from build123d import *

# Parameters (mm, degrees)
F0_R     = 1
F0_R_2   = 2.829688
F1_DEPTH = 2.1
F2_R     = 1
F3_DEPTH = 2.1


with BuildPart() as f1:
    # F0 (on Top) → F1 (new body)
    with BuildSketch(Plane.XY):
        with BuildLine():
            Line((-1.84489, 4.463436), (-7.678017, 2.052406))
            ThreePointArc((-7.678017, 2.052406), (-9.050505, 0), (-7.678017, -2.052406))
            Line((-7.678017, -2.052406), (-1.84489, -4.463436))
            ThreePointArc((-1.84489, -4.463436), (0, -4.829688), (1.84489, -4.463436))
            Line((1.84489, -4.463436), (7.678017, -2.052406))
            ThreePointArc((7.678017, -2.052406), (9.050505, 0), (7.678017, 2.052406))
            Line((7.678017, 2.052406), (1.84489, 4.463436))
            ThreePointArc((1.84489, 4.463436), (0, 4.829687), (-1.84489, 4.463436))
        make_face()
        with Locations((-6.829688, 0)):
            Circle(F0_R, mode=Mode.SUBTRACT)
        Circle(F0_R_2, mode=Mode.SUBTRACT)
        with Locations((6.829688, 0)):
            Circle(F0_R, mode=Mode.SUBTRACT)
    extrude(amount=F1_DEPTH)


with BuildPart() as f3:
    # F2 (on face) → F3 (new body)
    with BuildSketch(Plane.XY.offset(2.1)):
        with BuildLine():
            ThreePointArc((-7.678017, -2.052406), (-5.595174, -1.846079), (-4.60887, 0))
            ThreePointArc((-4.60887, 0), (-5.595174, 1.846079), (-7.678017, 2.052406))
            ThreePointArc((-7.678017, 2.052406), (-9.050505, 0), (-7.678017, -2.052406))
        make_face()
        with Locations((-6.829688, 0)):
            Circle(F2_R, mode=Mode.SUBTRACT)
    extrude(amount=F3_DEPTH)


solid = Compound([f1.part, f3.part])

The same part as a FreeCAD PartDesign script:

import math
import FreeCAD as App
import Part
import Sketcher
from FreeCAD import Vector

doc = App.newDocument("Part")
body = doc.addObject("PartDesign::Body", "Body")

sketch1 = body.newObject("Sketcher::SketchObject", "Sketch")
sketch1.AttachmentSupport = (doc.getObject("XY_Plane"), [""])
sketch1.MapMode = "FlatFace"
sketch1.addGeometry([
    Part.LineSegment(Vector(-1.84489, 4.463436, 0), Vector(-7.678017, 2.052406, 0)),
    Part.ArcOfCircle(Part.Circle(Vector(-6.829686, 0, 0), Vector(0, 0, 1), 2.220819), math.radians(112.457005), math.radians(247.542995)),
    Part.LineSegment(Vector(-7.678017, -2.052406, 0), Vector(-1.84489, -4.463436, 0)),
    Part.ArcOfCircle(Part.Circle(Vector(0, -0.000008, 0), Vector(0, 0, 1), 4.82968), math.radians(-112.457011), math.radians(-67.542989)),
    Part.LineSegment(Vector(1.84489, -4.463436, 0), Vector(7.678017, -2.052406, 0)),
    Part.ArcOfCircle(Part.Circle(Vector(6.829686, 0, 0), Vector(0, 0, 1), 2.220819), math.radians(-67.542995), math.radians(67.542995)),
    Part.LineSegment(Vector(7.678017, 2.052406, 0), Vector(1.84489, 4.463436, 0)),
    Part.ArcOfCircle(Part.Circle(Vector(0, -0.000005, 0), Vector(0, 0, 1), 4.829692), math.radians(67.543049), math.radians(112.456951)),
    Part.Circle(Vector(-6.829688, 0, 0), Vector(0, 0, 1), 1),
    Part.Circle(Vector(0, 0, 0), Vector(0, 0, 1), 2.829688),
    Part.Circle(Vector(6.829688, 0, 0), Vector(0, 0, 1), 1),
], False)
sketch1.addConstraint([
    Sketcher.Constraint("Coincident", 0, 2, 1, 1),
    Sketcher.Constraint("Coincident", 1, 2, 2, 1),
    Sketcher.Constraint("Coincident", 2, 2, 3, 1),
    Sketcher.Constraint("Coincident", 3, 2, 4, 1),
    Sketcher.Constraint("Coincident", 4, 2, 5, 1),
    Sketcher.Constraint("Coincident", 5, 2, 6, 1),
    Sketcher.Constraint("Coincident", 6, 2, 7, 1),
    Sketcher.Constraint("Coincident", 7, 2, 0, 1),
    Sketcher.Constraint("Coincident", 3, 3, -1, 1),
    Sketcher.Constraint("Coincident", 7, 3, -1, 1),
    Sketcher.Constraint("Coincident", 9, 3, -1, 1),
    Sketcher.Constraint("Coincident", 8, 3, 1, 3),
    Sketcher.Constraint("Coincident", 10, 3, 5, 3),
    Sketcher.Constraint("PointOnObject", 1, 3, -1),
    Sketcher.Constraint("PointOnObject", 5, 3, -1),
    Sketcher.Constraint("Diameter", 8, 2.0),
    Sketcher.Constraint("Diameter", 10, 2.0),
    Sketcher.Constraint("Radius", 1, 2.220819),
    Sketcher.Constraint("Radius", 3, 4.82968),
    Sketcher.Constraint("Radius", 5, 2.220819),
    Sketcher.Constraint("Radius", 7, 4.829692),
    Sketcher.Constraint("Diameter", 9, 5.659376),
    Sketcher.Constraint("DistanceY", 1, 2, 7, 3, 2.052401),
    Sketcher.Constraint("DistanceY", 4, 2, 7, 3, 2.052401),
    Sketcher.Constraint("Distance", 0, 6.31177),
    Sketcher.Constraint("Distance", 2, 6.31177),
    Sketcher.Constraint("Distance", 4, 6.31177),
    Sketcher.Constraint("Distance", 6, 6.31177),
    Sketcher.Constraint("DistanceX", 2, 2, -1, 1, 1.84489),
    Sketcher.Constraint("DistanceX", -1, 1, 3, 2, 1.84489),
    Sketcher.Constraint("DistanceX", -1, 1, 6, 2, 1.84489),
    Sketcher.Constraint("DistanceX", 7, 2, -1, 1, 1.84489),
])
pad1 = body.newObject("PartDesign::Pad", "Pad")
pad1.Profile = sketch1
pad1.Length = 2.1
body2 = doc.addObject("PartDesign::Body", "Body001")

sketch2 = body2.newObject("Sketcher::SketchObject", "Sketch001")
sketch2.AttachmentSupport = (doc.getObject("XY_Plane001"), [""])
sketch2.MapMode = "FlatFace"
sketch2.AttachmentOffset = App.Placement(Vector(0, 0, 2.1), App.Rotation())
sketch2.addGeometry([
    Part.ArcOfCircle(Part.Circle(Vector(-6.829688, 0, 0), Vector(0, 0, 1), 2.220818), math.radians(-112.456967), math.radians(-0.000001)),
    Part.ArcOfCircle(Part.Circle(Vector(-6.829688, 0, 0), Vector(0, 0, 1), 2.220818), math.radians(0.000001), math.radians(112.456967)),
    Part.ArcOfCircle(Part.Circle(Vector(-6.829686, 0, 0), Vector(0, 0, 1), 2.220819), math.radians(112.457005), math.radians(247.542995)),
    Part.Circle(Vector(-6.829688, 0, 0), Vector(0, 0, 1), 1),
], False)
sketch2.addConstraint([
    Sketcher.Constraint("Tangent", 0, 2, 1, 1),
    Sketcher.Constraint("Tangent", 1, 2, 2, 1),
    Sketcher.Constraint("Tangent", 2, 2, 0, 1),
    Sketcher.Constraint("Coincident", 3, 3, 0, 3),
    Sketcher.Constraint("Symmetric", 1, 2, 2, 2, -1),
    Sketcher.Constraint("PointOnObject", 0, 2, -1),
    Sketcher.Constraint("Diameter", 3, 2.0),
    Sketcher.Constraint("Radius", 0, 2.220818),
    Sketcher.Constraint("DistanceX", 0, 2, -1, 1, 4.60887),
    Sketcher.Constraint("DistanceX", 1, 2, 0, 3, 0.848329),
])
pad2 = body2.newObject("PartDesign::Pad", "Pad001")
pad2.Profile = sketch2
pad2.Length = 2.1

doc.recompute()
